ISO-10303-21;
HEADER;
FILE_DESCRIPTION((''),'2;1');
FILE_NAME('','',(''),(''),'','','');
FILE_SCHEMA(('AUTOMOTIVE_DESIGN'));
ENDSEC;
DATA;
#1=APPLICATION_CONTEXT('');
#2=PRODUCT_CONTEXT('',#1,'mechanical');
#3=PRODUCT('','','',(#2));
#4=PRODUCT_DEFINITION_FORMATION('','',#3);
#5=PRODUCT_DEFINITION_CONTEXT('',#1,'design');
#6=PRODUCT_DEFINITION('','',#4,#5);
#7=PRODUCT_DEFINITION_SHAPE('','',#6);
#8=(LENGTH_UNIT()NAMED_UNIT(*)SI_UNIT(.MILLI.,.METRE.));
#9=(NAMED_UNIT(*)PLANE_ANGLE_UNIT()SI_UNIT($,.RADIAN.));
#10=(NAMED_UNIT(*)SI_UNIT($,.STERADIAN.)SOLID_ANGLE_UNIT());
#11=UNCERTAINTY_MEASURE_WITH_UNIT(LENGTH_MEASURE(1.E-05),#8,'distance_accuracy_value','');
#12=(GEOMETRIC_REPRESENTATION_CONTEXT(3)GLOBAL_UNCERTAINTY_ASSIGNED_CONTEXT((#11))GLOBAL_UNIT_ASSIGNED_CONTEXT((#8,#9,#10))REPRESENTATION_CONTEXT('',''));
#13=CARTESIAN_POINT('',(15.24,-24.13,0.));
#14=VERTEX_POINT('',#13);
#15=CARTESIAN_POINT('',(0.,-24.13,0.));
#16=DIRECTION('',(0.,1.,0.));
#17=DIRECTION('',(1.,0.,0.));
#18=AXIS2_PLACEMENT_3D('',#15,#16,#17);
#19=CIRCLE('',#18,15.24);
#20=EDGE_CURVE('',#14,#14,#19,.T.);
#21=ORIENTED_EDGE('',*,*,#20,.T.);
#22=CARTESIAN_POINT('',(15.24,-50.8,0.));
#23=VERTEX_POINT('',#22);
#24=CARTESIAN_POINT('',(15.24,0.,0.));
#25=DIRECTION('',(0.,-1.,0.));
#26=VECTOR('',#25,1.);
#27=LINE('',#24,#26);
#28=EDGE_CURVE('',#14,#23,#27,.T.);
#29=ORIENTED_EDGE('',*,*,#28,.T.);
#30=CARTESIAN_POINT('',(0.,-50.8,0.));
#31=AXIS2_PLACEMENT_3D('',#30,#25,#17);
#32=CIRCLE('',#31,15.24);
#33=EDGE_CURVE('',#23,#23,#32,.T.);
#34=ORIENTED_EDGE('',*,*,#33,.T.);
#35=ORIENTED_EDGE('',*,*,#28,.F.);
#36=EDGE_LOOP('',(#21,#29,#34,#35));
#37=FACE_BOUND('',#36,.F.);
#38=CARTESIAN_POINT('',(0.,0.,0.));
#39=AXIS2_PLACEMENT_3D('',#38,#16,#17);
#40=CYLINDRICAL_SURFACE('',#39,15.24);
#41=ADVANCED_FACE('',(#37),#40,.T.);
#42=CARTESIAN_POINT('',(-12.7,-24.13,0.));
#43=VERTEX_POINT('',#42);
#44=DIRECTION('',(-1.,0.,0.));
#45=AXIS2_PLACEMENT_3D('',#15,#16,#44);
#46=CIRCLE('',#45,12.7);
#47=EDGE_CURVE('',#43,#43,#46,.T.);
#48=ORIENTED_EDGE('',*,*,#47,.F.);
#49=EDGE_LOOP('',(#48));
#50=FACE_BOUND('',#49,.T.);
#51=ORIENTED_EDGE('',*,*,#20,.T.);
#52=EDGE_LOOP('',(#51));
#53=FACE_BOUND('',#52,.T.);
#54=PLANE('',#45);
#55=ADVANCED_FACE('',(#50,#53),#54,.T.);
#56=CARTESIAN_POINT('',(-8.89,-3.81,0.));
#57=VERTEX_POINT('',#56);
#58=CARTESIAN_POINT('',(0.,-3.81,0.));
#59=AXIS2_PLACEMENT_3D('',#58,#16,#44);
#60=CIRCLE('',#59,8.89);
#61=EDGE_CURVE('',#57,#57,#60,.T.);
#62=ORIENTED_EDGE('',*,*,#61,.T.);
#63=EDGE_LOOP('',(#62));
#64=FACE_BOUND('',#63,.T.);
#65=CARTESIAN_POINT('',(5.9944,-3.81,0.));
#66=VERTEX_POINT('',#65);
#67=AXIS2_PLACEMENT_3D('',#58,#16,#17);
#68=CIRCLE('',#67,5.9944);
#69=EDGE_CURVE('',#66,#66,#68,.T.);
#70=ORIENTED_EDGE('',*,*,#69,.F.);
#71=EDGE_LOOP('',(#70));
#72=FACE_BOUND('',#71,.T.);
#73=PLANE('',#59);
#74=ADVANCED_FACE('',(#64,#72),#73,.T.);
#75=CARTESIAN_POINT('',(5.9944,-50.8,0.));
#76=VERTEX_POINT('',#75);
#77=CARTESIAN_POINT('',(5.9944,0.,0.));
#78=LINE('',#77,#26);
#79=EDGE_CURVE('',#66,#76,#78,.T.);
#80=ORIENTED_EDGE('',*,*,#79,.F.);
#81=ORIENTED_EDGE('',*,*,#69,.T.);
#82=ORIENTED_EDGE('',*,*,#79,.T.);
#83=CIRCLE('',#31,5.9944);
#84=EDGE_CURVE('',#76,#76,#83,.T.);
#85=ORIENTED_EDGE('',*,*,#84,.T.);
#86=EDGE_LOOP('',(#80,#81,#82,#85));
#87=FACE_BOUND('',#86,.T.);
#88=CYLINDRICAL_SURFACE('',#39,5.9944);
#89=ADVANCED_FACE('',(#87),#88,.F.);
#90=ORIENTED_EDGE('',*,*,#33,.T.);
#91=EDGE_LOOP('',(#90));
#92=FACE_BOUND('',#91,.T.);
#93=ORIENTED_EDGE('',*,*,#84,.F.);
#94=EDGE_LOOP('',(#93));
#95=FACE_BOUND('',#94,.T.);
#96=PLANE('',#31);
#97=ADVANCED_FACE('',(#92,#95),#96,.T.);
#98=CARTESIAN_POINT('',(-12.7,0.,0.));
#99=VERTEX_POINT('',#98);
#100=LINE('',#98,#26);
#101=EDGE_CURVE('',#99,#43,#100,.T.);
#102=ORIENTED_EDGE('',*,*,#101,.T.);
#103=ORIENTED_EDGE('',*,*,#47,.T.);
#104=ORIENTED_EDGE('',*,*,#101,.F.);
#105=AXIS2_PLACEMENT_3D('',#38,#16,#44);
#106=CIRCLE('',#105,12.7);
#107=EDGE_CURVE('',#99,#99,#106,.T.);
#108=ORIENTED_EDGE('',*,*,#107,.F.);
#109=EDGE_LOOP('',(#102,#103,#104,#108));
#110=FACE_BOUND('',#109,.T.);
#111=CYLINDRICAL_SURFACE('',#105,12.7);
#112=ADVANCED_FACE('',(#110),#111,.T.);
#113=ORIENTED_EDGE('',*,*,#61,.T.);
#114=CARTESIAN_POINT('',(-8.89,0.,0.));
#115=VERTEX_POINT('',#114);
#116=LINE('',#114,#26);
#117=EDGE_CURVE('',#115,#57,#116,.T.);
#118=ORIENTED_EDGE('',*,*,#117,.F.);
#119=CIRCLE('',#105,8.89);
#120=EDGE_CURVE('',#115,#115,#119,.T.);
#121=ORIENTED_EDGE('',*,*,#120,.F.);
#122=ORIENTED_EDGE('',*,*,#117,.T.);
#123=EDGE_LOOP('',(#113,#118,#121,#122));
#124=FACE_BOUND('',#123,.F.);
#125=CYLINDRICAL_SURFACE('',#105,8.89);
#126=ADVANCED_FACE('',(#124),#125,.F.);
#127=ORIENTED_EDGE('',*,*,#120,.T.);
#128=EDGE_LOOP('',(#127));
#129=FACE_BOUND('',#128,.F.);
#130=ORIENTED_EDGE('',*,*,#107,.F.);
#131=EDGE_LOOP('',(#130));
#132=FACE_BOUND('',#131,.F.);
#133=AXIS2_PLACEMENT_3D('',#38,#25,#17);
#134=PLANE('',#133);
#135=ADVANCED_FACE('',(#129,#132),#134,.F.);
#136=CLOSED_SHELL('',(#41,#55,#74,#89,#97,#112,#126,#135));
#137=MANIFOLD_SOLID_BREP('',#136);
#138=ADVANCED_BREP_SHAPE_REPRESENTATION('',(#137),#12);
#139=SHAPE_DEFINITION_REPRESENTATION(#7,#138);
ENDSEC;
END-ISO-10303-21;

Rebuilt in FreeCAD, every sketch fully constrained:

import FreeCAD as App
import Part
import Sketcher
from FreeCAD import Vector
Q = App.Units.Quantity

doc = App.newDocument("Part")
body = doc.addObject("PartDesign::Body", "Body")

# Sketch on XZ plane
sketch1 = body.newObject("Sketcher::SketchObject", "Sketch")
sketch1.AttachmentSupport = (doc.getObject("XZ_Plane"), [""])
sketch1.MapMode = "FlatFace"
sketch1.addGeometry([
    Part.Circle(Vector(0, 0, 0), Vector(0, 0, 1), 15),
    Part.Circle(Vector(0, 0, 0), Vector(0, 0, 1), 6),
], False)
sketch1.addConstraint([
    Sketcher.Constraint("Coincident", 0, 3, -1, 1),
    Sketcher.Constraint("Coincident", 1, 3, -1, 1),
    Sketcher.Constraint("Diameter", 0, Q("1.2 in")),
    Sketcher.Constraint("Diameter", 1, Q("0.472 in")),
])
pad1 = body.newObject("PartDesign::Pad", "Pad")
pad1.Profile = sketch1
pad1.Length = Q("2 in")

# Sketch on XZ plane
sketch2 = body.newObject("Sketcher::SketchObject", "Sketch001")
sketch2.AttachmentSupport = (doc.getObject("XZ_Plane"), [""])
sketch2.MapMode = "FlatFace"
sketch2.addGeometry([
    Part.Circle(Vector(0, 0, 0), Vector(0, 0, 1), 18),
    Part.Circle(Vector(0, 0, 0), Vector(0, 0, 1), 13),
], False)
sketch2.addConstraint([
    Sketcher.Constraint("Coincident", 0, 3, -1, 1),
    Sketcher.Constraint("Coincident", 1, 3, -1, 1),
    Sketcher.Constraint("Diameter", 1, Q("1 in")),
    Sketcher.Constraint("Diameter", 0, Q("36.870504 mm")),
])
pocket1 = body.newObject("PartDesign::Pocket", "Pocket")
pocket1.Profile = sketch2
pocket1.Length = Q("0.95 in")
pocket1.Reversed = True

# Sketch on XZ plane
sketch3 = body.newObject("Sketcher::SketchObject", "Sketch002")
sketch3.AttachmentSupport = (doc.getObject("XZ_Plane"), [""])
sketch3.MapMode = "FlatFace"
sketch3.addGeometry(Part.Circle(Vector(0, 0, 0), Vector(0, 0, 1), 9), False)
sketch3.addConstraint([
    Sketcher.Constraint("Coincident", 0, 3, -1, 1),
    Sketcher.Constraint("Diameter", 0, Q("0.7 in")),
])
pocket2 = body.newObject("PartDesign::Pocket", "Pocket001")
pocket2.Profile = sketch3
pocket2.Length = Q("0.15 in")
pocket2.Reversed = True

doc.recompute()
